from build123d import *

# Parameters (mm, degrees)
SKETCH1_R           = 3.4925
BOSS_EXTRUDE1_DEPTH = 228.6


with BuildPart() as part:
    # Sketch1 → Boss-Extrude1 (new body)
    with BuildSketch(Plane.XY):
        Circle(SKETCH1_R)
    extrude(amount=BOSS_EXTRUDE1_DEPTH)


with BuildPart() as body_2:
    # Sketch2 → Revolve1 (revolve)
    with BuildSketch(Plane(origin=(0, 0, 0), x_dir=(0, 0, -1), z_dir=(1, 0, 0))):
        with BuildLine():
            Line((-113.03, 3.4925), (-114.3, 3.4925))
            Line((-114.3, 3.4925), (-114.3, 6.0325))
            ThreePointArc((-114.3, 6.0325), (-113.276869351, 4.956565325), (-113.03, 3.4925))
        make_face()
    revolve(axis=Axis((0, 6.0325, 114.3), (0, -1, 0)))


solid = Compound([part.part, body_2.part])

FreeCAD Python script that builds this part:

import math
import FreeCAD as App
import Part
import Sketcher
Q = App.Units.Quantity

doc = App.newDocument("Part")
body = doc.addObject("PartDesign::Body", "Body")

sketch1 = body.newObject("Sketcher::SketchObject", "Sketch")
sketch1.AttachmentSupport = (doc.getObject("XY_Plane"), [""])
sketch1.MapMode = "FlatFace"
sketch1.addGeometry(Part.Circle(App.Vector(0, 0, 0), App.Vector(0, 0, 1), 3.5), False)
sketch1.addConstraint([
    Sketcher.Constraint("Coincident", 0, 3, -1, 1),
    Sketcher.Constraint("Diameter", 0, Q("0.275 in")),
])
pad1 = body.newObject("PartDesign::Pad", "Pad")
pad1.Profile = sketch1
pad1.Length = Q("9 in")
body2 = doc.addObject("PartDesign::Body", "Body001")

sketch2 = body2.newObject("Sketcher::SketchObject", "Sketch001")
sketch2.AttachmentSupport = (doc.getObject("YZ_Plane001"), [""])
sketch2.MapMode = "FlatFace"
sketch2.addGeometry([
    Part.LineSegment(App.Vector(3.5, 114.3, 0), App.Vector(3.5, 113, 0)),
    Part.ArcOfCircle(Part.Circle(App.Vector(3.8, 115.5, 0), App.Vector(0, 0, 1), 2.5), math.radians(-97), math.radians(-29)),
    Part.LineSegment(App.Vector(6, 114.3, 0), App.Vector(3.5, 114.3, 0)),
], False)
sketch2.addGeometry(Part.LineSegment(App.Vector(6, 114.3, 0), App.Vector(3.5, 114.3, 0)), True)
sketch2.addConstraint([
    Sketcher.Constraint("Coincident", 0, 2, 1, 1),
    Sketcher.Constraint("Coincident", 1, 2, 2, 1),
    Sketcher.Constraint("Coincident", 2, 2, 0, 1),
    Sketcher.Constraint("Vertical", 0),
    Sketcher.Constraint("Horizontal", 2),
    Sketcher.Constraint("Horizontal", 3),
    Sketcher.Constraint("Coincident", 3, 1, 1, 2),
    Sketcher.Constraint("Vertical", 0, 2, 3, 2),
    Sketcher.Constraint("Radius", 1, Q("0.1 in")),
    Sketcher.Constraint("DistanceX", 2, 2, 2, 1, Q("0.1 in")),
    Sketcher.Constraint("DistanceY", 0, 2, 0, 1, Q("0.05 in")),
    Sketcher.Constraint("DistanceY", -1, 1, 1, 2, Q("4.5 in")),
    Sketcher.Constraint("DistanceX", -1, 1, 0, 2, Q("0.1375 in")),
])
revolution = body2.newObject("PartDesign::Revolution", "Revolution")
revolution.Profile = sketch2
revolution.ReferenceAxis = (sketch2, ["Axis0"])
revolution.Angle = 360

doc.recompute()
